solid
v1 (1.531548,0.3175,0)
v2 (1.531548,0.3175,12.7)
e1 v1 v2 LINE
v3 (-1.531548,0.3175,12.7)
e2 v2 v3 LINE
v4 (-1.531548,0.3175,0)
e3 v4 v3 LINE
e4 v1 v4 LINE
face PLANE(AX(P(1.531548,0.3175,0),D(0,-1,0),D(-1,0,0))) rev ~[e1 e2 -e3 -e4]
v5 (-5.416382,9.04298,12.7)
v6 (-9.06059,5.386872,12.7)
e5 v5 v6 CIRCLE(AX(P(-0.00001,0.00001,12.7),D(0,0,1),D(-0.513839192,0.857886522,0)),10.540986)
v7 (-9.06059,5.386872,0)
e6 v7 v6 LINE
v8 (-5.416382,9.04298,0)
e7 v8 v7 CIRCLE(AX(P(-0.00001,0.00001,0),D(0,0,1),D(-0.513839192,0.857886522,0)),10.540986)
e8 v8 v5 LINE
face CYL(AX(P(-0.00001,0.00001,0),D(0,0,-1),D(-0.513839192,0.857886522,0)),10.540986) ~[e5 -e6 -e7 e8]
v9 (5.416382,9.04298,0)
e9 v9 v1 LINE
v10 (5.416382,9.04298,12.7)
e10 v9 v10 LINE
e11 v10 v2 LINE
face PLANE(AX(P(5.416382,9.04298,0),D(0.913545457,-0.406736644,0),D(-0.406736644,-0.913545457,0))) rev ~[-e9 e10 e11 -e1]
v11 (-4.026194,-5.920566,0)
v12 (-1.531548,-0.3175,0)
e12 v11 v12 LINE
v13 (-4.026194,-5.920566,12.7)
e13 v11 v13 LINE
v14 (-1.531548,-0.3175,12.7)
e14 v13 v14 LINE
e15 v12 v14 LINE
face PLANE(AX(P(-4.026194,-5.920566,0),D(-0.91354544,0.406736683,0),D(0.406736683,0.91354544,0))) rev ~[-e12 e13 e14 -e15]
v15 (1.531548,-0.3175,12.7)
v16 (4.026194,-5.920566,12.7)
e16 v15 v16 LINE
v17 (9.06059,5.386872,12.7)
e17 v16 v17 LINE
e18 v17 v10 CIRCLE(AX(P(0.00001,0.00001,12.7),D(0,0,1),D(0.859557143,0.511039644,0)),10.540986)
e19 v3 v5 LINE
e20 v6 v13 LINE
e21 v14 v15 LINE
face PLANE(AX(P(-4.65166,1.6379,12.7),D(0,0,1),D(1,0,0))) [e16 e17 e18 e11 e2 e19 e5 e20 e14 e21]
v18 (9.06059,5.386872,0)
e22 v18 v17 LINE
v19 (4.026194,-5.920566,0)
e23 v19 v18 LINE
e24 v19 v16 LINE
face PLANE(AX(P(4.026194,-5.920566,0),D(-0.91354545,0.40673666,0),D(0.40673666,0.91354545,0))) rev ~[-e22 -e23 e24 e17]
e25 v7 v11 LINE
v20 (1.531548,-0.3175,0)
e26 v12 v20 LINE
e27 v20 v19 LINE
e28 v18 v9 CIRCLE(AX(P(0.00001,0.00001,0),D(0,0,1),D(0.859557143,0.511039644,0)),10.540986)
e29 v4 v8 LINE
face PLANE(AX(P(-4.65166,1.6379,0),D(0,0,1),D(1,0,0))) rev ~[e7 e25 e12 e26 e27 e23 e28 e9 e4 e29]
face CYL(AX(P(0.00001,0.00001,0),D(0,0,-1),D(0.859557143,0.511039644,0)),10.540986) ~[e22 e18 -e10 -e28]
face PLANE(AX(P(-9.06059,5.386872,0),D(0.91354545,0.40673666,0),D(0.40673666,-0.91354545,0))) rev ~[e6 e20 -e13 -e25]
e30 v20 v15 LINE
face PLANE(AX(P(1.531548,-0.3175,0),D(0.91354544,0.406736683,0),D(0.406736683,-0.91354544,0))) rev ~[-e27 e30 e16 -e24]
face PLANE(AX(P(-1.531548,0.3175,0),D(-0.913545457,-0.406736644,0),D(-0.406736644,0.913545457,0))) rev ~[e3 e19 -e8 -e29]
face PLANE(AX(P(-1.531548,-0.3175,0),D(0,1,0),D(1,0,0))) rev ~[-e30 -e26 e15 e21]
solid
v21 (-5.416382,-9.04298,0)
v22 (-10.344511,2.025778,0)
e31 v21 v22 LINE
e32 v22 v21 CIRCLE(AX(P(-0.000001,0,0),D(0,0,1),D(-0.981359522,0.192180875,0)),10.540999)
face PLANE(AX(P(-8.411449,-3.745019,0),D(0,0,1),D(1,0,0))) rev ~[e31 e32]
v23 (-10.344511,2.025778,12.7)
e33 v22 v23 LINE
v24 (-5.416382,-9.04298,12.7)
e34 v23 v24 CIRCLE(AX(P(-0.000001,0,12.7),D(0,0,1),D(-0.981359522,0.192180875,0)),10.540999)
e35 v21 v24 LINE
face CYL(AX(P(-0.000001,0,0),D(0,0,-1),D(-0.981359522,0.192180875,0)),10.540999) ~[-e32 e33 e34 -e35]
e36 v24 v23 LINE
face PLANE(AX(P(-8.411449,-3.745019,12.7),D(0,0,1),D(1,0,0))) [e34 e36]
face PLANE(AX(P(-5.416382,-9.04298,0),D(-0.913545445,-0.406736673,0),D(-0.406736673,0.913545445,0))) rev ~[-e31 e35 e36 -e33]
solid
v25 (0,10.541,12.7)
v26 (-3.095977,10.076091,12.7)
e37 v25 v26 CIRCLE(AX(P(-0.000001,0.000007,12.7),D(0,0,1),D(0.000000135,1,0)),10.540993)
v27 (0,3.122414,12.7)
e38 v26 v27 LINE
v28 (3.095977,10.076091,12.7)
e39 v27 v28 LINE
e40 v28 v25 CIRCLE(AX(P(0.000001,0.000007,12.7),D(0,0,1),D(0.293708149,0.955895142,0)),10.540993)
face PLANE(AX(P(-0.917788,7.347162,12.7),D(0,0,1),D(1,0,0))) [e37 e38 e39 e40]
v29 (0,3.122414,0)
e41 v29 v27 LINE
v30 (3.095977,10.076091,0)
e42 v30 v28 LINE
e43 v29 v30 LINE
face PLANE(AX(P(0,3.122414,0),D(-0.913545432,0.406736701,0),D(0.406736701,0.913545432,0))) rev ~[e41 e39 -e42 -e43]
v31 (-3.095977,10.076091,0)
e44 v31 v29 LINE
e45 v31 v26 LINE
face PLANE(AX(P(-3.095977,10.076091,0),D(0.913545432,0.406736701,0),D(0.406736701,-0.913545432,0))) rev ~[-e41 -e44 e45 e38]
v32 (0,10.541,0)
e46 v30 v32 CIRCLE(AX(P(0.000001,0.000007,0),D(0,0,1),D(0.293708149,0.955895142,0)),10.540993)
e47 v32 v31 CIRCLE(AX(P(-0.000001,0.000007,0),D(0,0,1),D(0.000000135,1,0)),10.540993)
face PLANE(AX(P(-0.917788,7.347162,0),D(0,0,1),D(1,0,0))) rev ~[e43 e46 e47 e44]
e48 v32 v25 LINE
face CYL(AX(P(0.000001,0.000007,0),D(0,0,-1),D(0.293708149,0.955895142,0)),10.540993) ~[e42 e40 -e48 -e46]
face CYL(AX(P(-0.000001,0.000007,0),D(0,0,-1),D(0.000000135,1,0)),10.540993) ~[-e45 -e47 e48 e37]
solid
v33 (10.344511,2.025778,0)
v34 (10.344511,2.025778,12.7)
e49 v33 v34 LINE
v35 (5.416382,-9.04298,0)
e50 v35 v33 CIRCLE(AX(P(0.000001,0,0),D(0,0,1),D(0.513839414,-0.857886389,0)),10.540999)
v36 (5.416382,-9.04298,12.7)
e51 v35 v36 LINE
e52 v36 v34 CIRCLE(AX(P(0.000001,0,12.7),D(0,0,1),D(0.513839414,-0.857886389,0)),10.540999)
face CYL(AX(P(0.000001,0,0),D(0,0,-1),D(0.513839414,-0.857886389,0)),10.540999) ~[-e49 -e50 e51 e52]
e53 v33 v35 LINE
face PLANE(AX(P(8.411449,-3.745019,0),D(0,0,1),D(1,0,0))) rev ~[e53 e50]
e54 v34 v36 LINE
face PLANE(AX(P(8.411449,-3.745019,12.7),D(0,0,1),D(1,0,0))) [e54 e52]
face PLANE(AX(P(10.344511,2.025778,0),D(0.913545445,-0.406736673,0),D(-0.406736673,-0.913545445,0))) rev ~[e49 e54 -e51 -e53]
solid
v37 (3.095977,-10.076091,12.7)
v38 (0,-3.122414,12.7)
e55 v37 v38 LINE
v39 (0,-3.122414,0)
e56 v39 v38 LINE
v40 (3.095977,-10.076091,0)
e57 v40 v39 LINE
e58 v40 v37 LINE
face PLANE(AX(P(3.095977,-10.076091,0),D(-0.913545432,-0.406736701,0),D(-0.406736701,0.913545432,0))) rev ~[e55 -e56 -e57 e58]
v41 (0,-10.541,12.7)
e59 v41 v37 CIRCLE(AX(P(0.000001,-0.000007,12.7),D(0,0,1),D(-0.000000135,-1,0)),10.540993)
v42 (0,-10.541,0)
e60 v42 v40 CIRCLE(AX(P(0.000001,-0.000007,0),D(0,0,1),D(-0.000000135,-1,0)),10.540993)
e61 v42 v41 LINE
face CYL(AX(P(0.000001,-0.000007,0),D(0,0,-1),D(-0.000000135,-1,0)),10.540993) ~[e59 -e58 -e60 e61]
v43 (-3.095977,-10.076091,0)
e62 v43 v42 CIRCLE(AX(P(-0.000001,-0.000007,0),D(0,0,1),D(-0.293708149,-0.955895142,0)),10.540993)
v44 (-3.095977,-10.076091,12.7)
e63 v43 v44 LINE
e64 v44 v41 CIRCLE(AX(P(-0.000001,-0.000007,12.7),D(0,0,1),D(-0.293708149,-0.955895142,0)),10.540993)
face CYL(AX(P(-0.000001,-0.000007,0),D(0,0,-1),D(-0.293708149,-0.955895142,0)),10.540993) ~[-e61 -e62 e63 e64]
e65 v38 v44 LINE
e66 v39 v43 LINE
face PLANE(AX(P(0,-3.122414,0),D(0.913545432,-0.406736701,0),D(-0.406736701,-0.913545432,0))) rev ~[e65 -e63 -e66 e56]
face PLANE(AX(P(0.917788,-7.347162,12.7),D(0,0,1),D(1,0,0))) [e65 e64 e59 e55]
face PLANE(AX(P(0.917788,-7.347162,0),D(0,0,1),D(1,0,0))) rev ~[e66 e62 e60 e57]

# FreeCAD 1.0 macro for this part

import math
import FreeCAD as App
import Part
import Sketcher
Q = App.Units.Quantity

doc = App.newDocument("Part")
body = doc.addObject("PartDesign::Body", "Body")
body.AllowCompound = True

sketch1 = body.newObject("Sketcher::SketchObject", "Sketch")
sketch1.AttachmentSupport = (doc.getObject("XY_Plane"), [""])
sketch1.MapMode = "FlatFace"
sketch1.addGeometry([
    Part.LineSegment(App.Vector(-1.531548, 0.3175, 0), App.Vector(-5.416382, 9.04298, 0)),
    Part.ArcOfCircle(Part.Circle(App.Vector(-0.00001, 0.00001, 0), App.Vector(0, 0, 1), 10.540986), math.radians(120.919896), math.radians(149.266895)),
    Part.LineSegment(App.Vector(-9.06059, 5.386872, 0), App.Vector(-4.026194, -5.920566, 0)),
    Part.LineSegment(App.Vector(-4.026194, -5.920566, 0), App.Vector(-1.531548, -0.3175, 0)),
    Part.LineSegment(App.Vector(-1.531548, -0.3175, 0), App.Vector(1.531548, -0.3175, 0)),
    Part.LineSegment(App.Vector(1.531548, -0.3175, 0), App.Vector(4.026194, -5.920566, 0)),
    Part.LineSegment(App.Vector(4.026194, -5.920566, 0), App.Vector(9.06059, 5.386872, 0)),
    Part.ArcOfCircle(Part.Circle(App.Vector(0.00001, 0.00001, 0), App.Vector(0, 0, 1), 10.540986), math.radians(30.733105), math.radians(59.080104)),
    Part.LineSegment(App.Vector(5.416382, 9.04298, 0), App.Vector(1.531548, 0.3175, 0)),
    Part.LineSegment(App.Vector(1.531548, 0.3175, 0), App.Vector(-1.531548, 0.3175, 0)),
    Part.ArcOfCircle(Part.Circle(App.Vector(-0.000001, 0.000007, 0), App.Vector(0, 0, 1), 10.540993), math.radians(89.999992), math.radians(107.080088)),
    Part.LineSegment(App.Vector(-3.095977, 10.076091, 0), App.Vector(0, 3.122414, 0)),
    Part.LineSegment(App.Vector(0, 3.122414, 0), App.Vector(3.095977, 10.076091, 0)),
    Part.ArcOfCircle(Part.Circle(App.Vector(0.000001, 0.000007, 0), App.Vector(0, 0, 1), 10.540993), math.radians(72.919912), math.radians(90.000008)),
    Part.LineSegment(App.Vector(10.344511, 2.025778, 0), App.Vector(5.416382, -9.04298, 0)),
    Part.ArcOfCircle(Part.Circle(App.Vector(0.000001, 0, 0), App.Vector(0, 0, 1), 10.540999), math.radians(-59.080089), math.radians(11.080085)),
    Part.ArcOfCircle(Part.Circle(App.Vector(0.000001, -0.000007, 0), App.Vector(0, 0, 1), 10.540993), math.radians(-90.000008), math.radians(-72.919912)),
    Part.LineSegment(App.Vector(3.095977, -10.076091, 0), App.Vector(0, -3.122414, 0)),
    Part.LineSegment(App.Vector(0, -3.122414, 0), App.Vector(-3.095977, -10.076091, 0)),
    Part.ArcOfCircle(Part.Circle(App.Vector(-0.000001, -0.000007, 0), App.Vector(0, 0, 1), 10.540993), math.radians(-107.080088), math.radians(-89.999992)),
    Part.ArcOfCircle(Part.Circle(App.Vector(-0.000001, 0, 0), App.Vector(0, 0, 1), 10.540999), math.radians(168.919915), math.radians(239.080089)),
    Part.LineSegment(App.Vector(-5.416382, -9.04298, 0), App.Vector(-10.344511, 2.025778, 0)),
], False)
sketch1.addConstraint([
    Sketcher.Constraint("Coincident", 0, 2, 1, 1),
    Sketcher.Constraint("Coincident", 1, 2, 2, 1),
    Sketcher.Constraint("Coincident", 2, 2, 3, 1),
    Sketcher.Constraint("Coincident", 3, 2, 4, 1),
    Sketcher.Constraint("Coincident", 4, 2, 5, 1),
    Sketcher.Constraint("Coincident", 5, 2, 6, 1),
    Sketcher.Constraint("Coincident", 6, 2, 7, 1),
    Sketcher.Constraint("Coincident", 7, 2, 8, 1),
    Sketcher.Constraint("Coincident", 8, 2, 9, 1),
    Sketcher.Constraint("Coincident", 9, 2, 0, 1),
    Sketcher.Constraint("Coincident", 10, 2, 11, 1),
    Sketcher.Constraint("Coincident", 11, 2, 12, 1),
    Sketcher.Constraint("Coincident", 12, 2, 13, 1),
    Sketcher.Constraint("Tangent", 13, 2, 10, 1),
    Sketcher.Constraint("Coincident", 14, 1, 15, 2),
    Sketcher.Constraint("Coincident", 15, 1, 14, 2),
    Sketcher.Constraint("Coincident", 16, 2, 17, 1),
    Sketcher.Constraint("Coincident", 17, 2, 18, 1),
    Sketcher.Constraint("Coincident", 18, 2, 19, 1),
    Sketcher.Constraint("Tangent", 19, 2, 16, 1),
    Sketcher.Constraint("Coincident", 20, 1, 21, 2),
    Sketcher.Constraint("Coincident", 21, 1, 20, 2),
    Sketcher.Constraint("Horizontal", 4),
    Sketcher.Constraint("Horizontal", 9),
    Sketcher.Constraint("Coincident", 10, 3, -1, 1),
    Sketcher.Constraint("Coincident", 15, 3, -1, 1),
    Sketcher.Constraint("Coincident", 16, 3, -1, 1),
    Sketcher.Constraint("Coincident", 20, 3, -1, 1),
    Sketcher.Constraint("Coincident", 10, 3, 1, 3),
    Sketcher.Constraint("Coincident", 13, 3, 7, 3),
    Sketcher.Constraint("Equal", 1, 7),
    Sketcher.Constraint("Equal", 10, 13),
    Sketcher.Constraint("Equal", 13, 16),
    Sketcher.Constraint("Equal", 16, 19),
    Sketcher.Constraint("Equal", 15, 20),
    Sketcher.Constraint("Symmetric", 3, 2, 8, 2, -1, 1),
    Sketcher.Constraint("Symmetric", 0, 2, 15, 1, -1, 1),
    Sketcher.Constraint("Symmetric", 11, 2, 17, 2, -1, 1),
    Sketcher.Constraint("Symmetric", 2, 2, 5, 2, -2),
    Sketcher.Constraint("PointOnObject", 11, 2, -2),
    Sketcher.Constraint("PointOnObject", 13, 2, -2),
    Sketcher.Constraint("PointOnObject", 19, 2, -2),
    Sketcher.Constraint("Parallel", 0, 2),
    Sketcher.Constraint("Parallel", 2, 5),
    Sketcher.Constraint("Parallel", 3, 6),
    Sketcher.Constraint("Parallel", 6, 8),
    Sketcher.Constraint("Parallel", 5, 11),
    Sketcher.Constraint("Parallel", 8, 12),
    Sketcher.Constraint("Parallel", 12, 14),
    Sketcher.Constraint("Parallel", 11, 17),
    Sketcher.Constraint("Parallel", 14, 18),
    Sketcher.Constraint("Parallel", 17, 21),
    Sketcher.Constraint("Horizontal", 1, 2, 6, 2),
    Sketcher.Constraint("Horizontal", 0, 2, 7, 2),
    Sketcher.Constraint("Horizontal", 14, 1, 20, 1),
    Sketcher.Constraint("Angle", 0, Q("114 deg")),
    Sketcher.Constraint("Radius", 15, Q("0.415 in")),
    Sketcher.Constraint("DistanceY", -1, 1, 13, 2, Q("0.415 in")),
    Sketcher.Constraint("DistanceY", 4, 2, 8, 2, Q("0.025 in")),
    Sketcher.Constraint("DistanceY", 20, 1, 0, 2, Q("7.017202 mm")),
    Sketcher.Constraint("Distance", 2, Q("12.377532 mm")),
    Sketcher.Constraint("DistanceY", -1, 1, 10, 2, Q("10.076091 mm")),
])
pad1 = body.newObject("PartDesign::Pad", "Pad")
pad1.Profile = sketch1
pad1.Length = Q("0.5 in")

doc.recompute()
